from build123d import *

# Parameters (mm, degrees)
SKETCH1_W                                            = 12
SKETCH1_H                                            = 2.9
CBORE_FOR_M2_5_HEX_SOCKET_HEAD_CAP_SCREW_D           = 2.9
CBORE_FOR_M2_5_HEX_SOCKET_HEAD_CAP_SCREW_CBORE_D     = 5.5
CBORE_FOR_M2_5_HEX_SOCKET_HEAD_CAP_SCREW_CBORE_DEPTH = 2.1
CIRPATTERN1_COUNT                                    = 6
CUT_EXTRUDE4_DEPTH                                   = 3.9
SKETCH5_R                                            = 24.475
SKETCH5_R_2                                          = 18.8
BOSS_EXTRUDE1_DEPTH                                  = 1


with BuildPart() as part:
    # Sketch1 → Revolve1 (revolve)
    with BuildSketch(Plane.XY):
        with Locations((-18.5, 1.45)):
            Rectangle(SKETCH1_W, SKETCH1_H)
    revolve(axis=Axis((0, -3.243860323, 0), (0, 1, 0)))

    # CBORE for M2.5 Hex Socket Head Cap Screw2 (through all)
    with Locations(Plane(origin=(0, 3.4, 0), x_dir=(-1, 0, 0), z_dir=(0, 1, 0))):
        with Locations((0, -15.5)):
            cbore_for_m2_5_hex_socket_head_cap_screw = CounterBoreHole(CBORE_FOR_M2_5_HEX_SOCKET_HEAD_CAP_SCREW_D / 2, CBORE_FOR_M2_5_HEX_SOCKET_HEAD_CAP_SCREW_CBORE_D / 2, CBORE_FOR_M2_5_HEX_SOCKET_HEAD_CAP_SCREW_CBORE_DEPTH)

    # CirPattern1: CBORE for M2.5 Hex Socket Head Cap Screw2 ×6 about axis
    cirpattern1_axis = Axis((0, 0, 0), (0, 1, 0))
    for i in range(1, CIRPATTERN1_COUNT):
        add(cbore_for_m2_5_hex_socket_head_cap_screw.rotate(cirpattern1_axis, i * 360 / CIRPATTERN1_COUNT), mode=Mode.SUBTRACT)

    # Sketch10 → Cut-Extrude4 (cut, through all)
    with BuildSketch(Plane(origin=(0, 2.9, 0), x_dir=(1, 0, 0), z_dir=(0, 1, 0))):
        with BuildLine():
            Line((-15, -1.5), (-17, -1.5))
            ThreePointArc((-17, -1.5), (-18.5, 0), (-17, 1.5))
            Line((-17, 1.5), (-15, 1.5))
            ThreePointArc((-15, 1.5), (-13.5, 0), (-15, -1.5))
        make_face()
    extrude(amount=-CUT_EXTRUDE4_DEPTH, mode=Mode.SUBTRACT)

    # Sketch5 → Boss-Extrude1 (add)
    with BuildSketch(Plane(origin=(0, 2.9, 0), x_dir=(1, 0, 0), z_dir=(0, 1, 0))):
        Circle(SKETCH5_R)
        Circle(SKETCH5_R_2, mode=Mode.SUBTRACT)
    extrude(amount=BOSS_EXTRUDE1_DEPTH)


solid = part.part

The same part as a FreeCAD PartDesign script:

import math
import FreeCAD as App
import Part
import Sketcher
Q = App.Units.Quantity


def add_polygon(sketch, points):
    """Adds a closed chain of lines whose ends are joined by coincident constraints."""
    first, n = sketch.GeometryCount, len(points)
    for a, b in zip(points, points[1:] + points[:1]):
        sketch.addGeometry(Part.LineSegment(App.Vector(*a, 0), App.Vector(*b, 0)), False)
    for i in range(n):
        sketch.addConstraint(Sketcher.Constraint("Coincident", first + i, 2, first + (i + 1) % n, 1))

doc = App.newDocument("Part")
body = doc.addObject("PartDesign::Body", "Body")

sketch1 = doc.addObject("Sketcher::SketchObject", "Sketch")
body.addObject(sketch1)
sketch1.AttachmentSupport = (doc.XY_Plane, [""])
sketch1.MapMode = "FlatFace"
add_polygon(sketch1, [(-24.5, 2.9), (-24.5, 0), (-12.5, 0), (-12.5, 2.9)])
sketch1.addConstraint([
    Sketcher.Constraint("Vertical", 0),
    Sketcher.Constraint("Horizontal", 1),
    Sketcher.Constraint("Vertical", 2),
    Sketcher.Constraint("Horizontal", 3),
    Sketcher.Constraint("PointOnObject", 0, 2, -1),
    Sketcher.Constraint("DistanceX", 1, 1, 1, 2, Q("12 mm")),
    Sketcher.Constraint("DistanceY", 0, 2, 0, 1, Q("2.9 mm")),
    Sketcher.Constraint("DistanceX", 0, 2, -1, 1, Q("24.5 mm")),
])
revolution = doc.addObject("PartDesign::Revolution", "Revolution")
body.addObject(revolution)
revolution.Profile = sketch1
revolution.ReferenceAxis = (sketch1, ["V_Axis"])
revolution.Angle = 360

sketch2 = doc.addObject("Sketcher::SketchObject", "Sketch001")
body.addObject(sketch2)
sketch2.AttachmentSupport = (doc.XZ_Plane, [""])
sketch2.MapMode = "FlatFace"
sketch2.AttachmentOffset = App.Placement(App.Vector(0, 0, -3.4), App.Rotation())
sketch2.addGeometry(Part.Circle(App.Vector(0, -15.5, 0), App.Vector(0, 0, 1), 1.45), False)
sketch2.addConstraint([
    Sketcher.Constraint("PointOnObject", 0, 3, -2),
    Sketcher.Constraint("Diameter", 0, Q("2.9 mm")),
    Sketcher.Constraint("DistanceY", 0, 3, -1, 1, Q("15.5 mm")),
])
doc.recompute()
hole = doc.addObject("PartDesign::Hole", "Hole")
body.addObject(hole)
hole.Profile = sketch2
hole.ThreadType = "None"
hole.Diameter = 2.9
hole.DepthType = "ThroughAll"
hole.HoleCutType = "Counterbore"
hole.HoleCutDiameter = 5.5
hole.HoleCutDepth = 2.1
hole.Reversed = True
doc.recompute()

polarpattern = doc.addObject("PartDesign::PolarPattern", "PolarPattern")
body.addObject(polarpattern)
polarpattern.Originals = [hole]
polarpattern.Axis = (doc.Y_Axis, [""])
polarpattern.Angle = 360
polarpattern.Occurrences = 6
body.Tip = polarpattern

sketch3 = doc.addObject("Sketcher::SketchObject", "Sketch002")
body.addObject(sketch3)
sketch3.AttachmentSupport = (doc.XZ_Plane, [""])
sketch3.MapMode = "FlatFace"
sketch3.AttachmentOffset = App.Placement(App.Vector(0, 0, -2.9), App.Rotation())
sketch3.addGeometry([
    Part.LineSegment(App.Vector(-17, 1.5, 0), App.Vector(-15, 1.5, 0)),
    Part.ArcOfCircle(Part.Circle(App.Vector(-15, 0, 0), App.Vector(0, 0, 1), 1.5), math.radians(-90), math.radians(90)),
    Part.LineSegment(App.Vector(-15, -1.5, 0), App.Vector(-17, -1.5, 0)),
    Part.ArcOfCircle(Part.Circle(App.Vector(-17, 0, 0), App.Vector(0, 0, 1), 1.5), math.radians(90), math.radians(270)),
], False)
sketch3.addConstraint([
    Sketcher.Constraint("Tangent", 0, 2, 1, 2),
    Sketcher.Constraint("Tangent", 1, 1, 2, 1),
    Sketcher.Constraint("Tangent", 2, 2, 3, 2),
    Sketcher.Constraint("Tangent", 3, 1, 0, 1),
    Sketcher.Constraint("Horizontal", 0),
    Sketcher.Constraint("Horizontal", 2),
    Sketcher.Constraint("PointOnObject", 1, 3, -1),
    Sketcher.Constraint("Radius", 1, Q("1.5 mm")),
    Sketcher.Constraint("DistanceX", 0, 1, 0, 2, Q("2 mm")),
    Sketcher.Constraint("DistanceX", 1, 3, -1, 1, Q("15 mm")),
])
pocket1 = doc.addObject("PartDesign::Pocket", "Pocket")
body.addObject(pocket1)
pocket1.Profile = sketch3
pocket1.Type = "ThroughAll"
pocket1.Reversed = True

sketch4 = doc.addObject("Sketcher::SketchObject", "Sketch003")
body.addObject(sketch4)
sketch4.AttachmentSupport = (doc.XZ_Plane, [""])
sketch4.MapMode = "FlatFace"
sketch4.AttachmentOffset = App.Placement(App.Vector(0, 0, -2.9), App.Rotation())
sketch4.addGeometry([
    Part.Circle(App.Vector(0, 0, 0), App.Vector(0, 0, 1), 24.475),
    Part.Circle(App.Vector(0, 0, 0), App.Vector(0, 0, 1), 18.8),
], False)
sketch4.addConstraint([
    Sketcher.Constraint("Coincident", 0, 3, -1, 1),
    Sketcher.Constraint("Coincident", 1, 3, -1, 1),
    Sketcher.Constraint("Diameter", 1, Q("37.6 mm")),
    Sketcher.Constraint("Diameter", 0, Q("48.95 mm")),
])
pad1 = doc.addObject("PartDesign::Pad", "Pad")
body.addObject(pad1)
pad1.Profile = sketch4
pad1.Length = 1
pad1.Reversed = True

doc.recompute()
